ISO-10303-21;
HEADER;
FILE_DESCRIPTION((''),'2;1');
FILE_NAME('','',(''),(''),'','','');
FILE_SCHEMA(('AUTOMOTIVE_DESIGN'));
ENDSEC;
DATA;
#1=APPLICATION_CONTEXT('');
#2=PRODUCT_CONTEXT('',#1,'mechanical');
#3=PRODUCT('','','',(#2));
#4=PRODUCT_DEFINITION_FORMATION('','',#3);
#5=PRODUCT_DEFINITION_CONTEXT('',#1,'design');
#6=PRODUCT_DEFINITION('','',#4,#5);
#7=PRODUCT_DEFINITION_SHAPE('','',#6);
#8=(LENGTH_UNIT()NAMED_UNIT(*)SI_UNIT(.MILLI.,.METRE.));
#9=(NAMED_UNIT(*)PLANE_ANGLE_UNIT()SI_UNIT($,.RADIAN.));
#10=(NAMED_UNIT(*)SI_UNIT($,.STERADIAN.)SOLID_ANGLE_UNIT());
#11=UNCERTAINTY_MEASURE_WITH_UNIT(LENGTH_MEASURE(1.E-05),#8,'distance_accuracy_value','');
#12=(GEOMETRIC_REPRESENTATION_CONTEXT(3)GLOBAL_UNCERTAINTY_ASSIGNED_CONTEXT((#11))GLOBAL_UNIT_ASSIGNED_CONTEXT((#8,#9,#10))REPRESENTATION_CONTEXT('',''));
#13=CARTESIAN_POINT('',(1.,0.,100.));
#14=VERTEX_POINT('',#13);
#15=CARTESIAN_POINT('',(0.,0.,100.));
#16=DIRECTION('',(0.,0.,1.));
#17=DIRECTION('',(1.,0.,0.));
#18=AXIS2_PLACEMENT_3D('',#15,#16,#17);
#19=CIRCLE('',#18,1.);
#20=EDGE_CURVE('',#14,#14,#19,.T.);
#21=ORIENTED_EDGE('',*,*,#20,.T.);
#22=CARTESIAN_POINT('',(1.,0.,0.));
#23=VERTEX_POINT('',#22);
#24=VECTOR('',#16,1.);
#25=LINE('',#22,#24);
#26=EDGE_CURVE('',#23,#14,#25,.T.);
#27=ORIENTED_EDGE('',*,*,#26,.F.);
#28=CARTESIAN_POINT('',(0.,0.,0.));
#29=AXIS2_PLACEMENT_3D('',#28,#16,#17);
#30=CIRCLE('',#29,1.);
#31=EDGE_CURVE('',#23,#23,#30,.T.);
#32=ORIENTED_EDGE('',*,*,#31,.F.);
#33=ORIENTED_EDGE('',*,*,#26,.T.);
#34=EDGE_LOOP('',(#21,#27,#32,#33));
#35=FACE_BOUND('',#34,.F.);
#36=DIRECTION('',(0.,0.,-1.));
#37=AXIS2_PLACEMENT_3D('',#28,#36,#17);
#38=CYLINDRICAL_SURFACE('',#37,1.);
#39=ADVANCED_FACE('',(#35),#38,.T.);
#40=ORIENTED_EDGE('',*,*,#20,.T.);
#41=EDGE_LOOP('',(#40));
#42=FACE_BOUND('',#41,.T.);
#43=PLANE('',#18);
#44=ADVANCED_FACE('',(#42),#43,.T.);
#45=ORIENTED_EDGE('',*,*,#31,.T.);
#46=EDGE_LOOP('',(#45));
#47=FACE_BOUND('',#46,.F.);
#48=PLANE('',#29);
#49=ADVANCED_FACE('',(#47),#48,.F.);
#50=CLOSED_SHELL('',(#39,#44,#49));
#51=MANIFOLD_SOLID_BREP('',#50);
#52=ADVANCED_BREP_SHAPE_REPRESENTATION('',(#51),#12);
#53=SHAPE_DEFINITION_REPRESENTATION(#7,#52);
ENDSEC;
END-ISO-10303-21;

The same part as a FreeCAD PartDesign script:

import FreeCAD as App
import Part
import Sketcher

V = App.Vector
Q = App.Units.Quantity

doc = App.newDocument("Part")
body = doc.addObject("PartDesign::Body", "Body")

# Sketch on XY plane
sketch1 = doc.addObject("Sketcher::SketchObject", "Sketch")
body.addObject(sketch1)
sketch1.AttachmentSupport = (doc.XY_Plane, [""])
sketch1.MapMode = "FlatFace"
sketch1.addGeometry(Part.Circle(V(0, 0, 0), V(0, 0, 1), 1), False)
sketch1.addConstraint([
    Sketcher.Constraint("Coincident", 0, 3, -1, 1),
    Sketcher.Constraint("Diameter", 0, Q("2 mm")),
])
pad1 = doc.addObject("PartDesign::Pad", "Pad")
body.addObject(pad1)
pad1.Profile = sketch1
pad1.Length = 100

doc.recompute()
